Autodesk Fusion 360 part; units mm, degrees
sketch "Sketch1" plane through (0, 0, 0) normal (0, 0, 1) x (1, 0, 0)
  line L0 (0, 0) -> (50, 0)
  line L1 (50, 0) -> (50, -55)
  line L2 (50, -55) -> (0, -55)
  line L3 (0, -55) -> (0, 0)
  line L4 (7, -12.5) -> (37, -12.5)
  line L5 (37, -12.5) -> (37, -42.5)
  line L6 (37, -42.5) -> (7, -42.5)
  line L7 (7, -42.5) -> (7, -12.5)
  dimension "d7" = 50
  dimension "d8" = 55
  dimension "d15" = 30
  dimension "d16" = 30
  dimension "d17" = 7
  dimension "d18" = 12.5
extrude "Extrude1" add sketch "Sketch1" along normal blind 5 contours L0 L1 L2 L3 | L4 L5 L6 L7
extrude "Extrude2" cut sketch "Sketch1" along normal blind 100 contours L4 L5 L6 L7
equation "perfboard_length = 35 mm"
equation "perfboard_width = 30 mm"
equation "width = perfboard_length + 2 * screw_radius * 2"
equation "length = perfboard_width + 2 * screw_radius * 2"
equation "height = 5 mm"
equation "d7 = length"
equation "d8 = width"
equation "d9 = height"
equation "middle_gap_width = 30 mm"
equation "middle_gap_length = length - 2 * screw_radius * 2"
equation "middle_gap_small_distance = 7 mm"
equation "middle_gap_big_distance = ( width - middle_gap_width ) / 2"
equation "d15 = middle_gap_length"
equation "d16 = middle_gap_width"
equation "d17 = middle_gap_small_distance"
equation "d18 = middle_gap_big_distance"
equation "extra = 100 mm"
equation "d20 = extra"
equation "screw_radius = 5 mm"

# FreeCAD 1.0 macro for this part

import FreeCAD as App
import Part
import Sketcher

V = App.Vector

doc = App.newDocument("Part")
body = doc.addObject("PartDesign::Body", "Body")

# Sketch on XY plane
sketch1 = body.newObject("Sketcher::SketchObject", "Sketch")
sketch1.AttachmentSupport = (doc.getObject("XY_Plane"), [""])
sketch1.MapMode = "FlatFace"
sketch1.addGeometry(Part.LineSegment(V(50, 0, 0), V(0, 0, 0)), False)
sketch1.addGeometry(Part.LineSegment(V(0, 0, 0), V(0, -55, 0)), False)
sketch1.addGeometry(Part.LineSegment(V(0, -55, 0), V(50, -55, 0)), False)
sketch1.addGeometry(Part.LineSegment(V(50, -55, 0), V(50, 0, 0)), False)
sketch1.addConstraint(Sketcher.Constraint("Coincident", 0, 2, 1, 1))
sketch1.addConstraint(Sketcher.Constraint("Coincident", 1, 2, 2, 1))
sketch1.addConstraint(Sketcher.Constraint("Coincident", 2, 2, 3, 1))
sketch1.addConstraint(Sketcher.Constraint("Coincident", 3, 2, 0, 1))
sketch1.addConstraint(Sketcher.Constraint("Horizontal", 0))
sketch1.addConstraint(Sketcher.Constraint("Vertical", 1))
sketch1.addConstraint(Sketcher.Constraint("Horizontal", 2))
sketch1.addConstraint(Sketcher.Constraint("Vertical", 3))
sketch1.addConstraint(Sketcher.Constraint("Coincident", 0, 2, -1, 1))
sketch1.addConstraint(Sketcher.Constraint("DistanceX", 0, 2, 0, 1, 50.0))
sketch1.addConstraint(Sketcher.Constraint("DistanceY", 1, 2, 1, 1, 55.0))
pad1 = body.newObject("PartDesign::Pad", "Pad")
pad1.Profile = sketch1
pad1.Length = 5

# Sketch on XY plane
sketch2 = body.newObject("Sketcher::SketchObject", "Sketch001")
sketch2.AttachmentSupport = (doc.getObject("XY_Plane"), [""])
sketch2.MapMode = "FlatFace"
sketch2.addGeometry(Part.LineSegment(V(37, -12.5, 0), V(7, -12.5, 0)), False)
sketch2.addGeometry(Part.LineSegment(V(7, -12.5, 0), V(7, -42.5, 0)), False)
sketch2.addGeometry(Part.LineSegment(V(7, -42.5, 0), V(37, -42.5, 0)), False)
sketch2.addGeometry(Part.LineSegment(V(37, -42.5, 0), V(37, -12.5, 0)), False)
sketch2.addConstraint(Sketcher.Constraint("Coincident", 0, 2, 1, 1))
sketch2.addConstraint(Sketcher.Constraint("Coincident", 1, 2, 2, 1))
sketch2.addConstraint(Sketcher.Constraint("Coincident", 2, 2, 3, 1))
sketch2.addConstraint(Sketcher.Constraint("Coincident", 3, 2, 0, 1))
sketch2.addConstraint(Sketcher.Constraint("Horizontal", 0))
sketch2.addConstraint(Sketcher.Constraint("Vertical", 1))
sketch2.addConstraint(Sketcher.Constraint("Horizontal", 2))
sketch2.addConstraint(Sketcher.Constraint("Vertical", 3))
sketch2.addConstraint(Sketcher.Constraint("Equal", 2, 1))
sketch2.addConstraint(Sketcher.Constraint("DistanceX", 0, 2, 0, 1, 30.0))
sketch2.addConstraint(Sketcher.Constraint("DistanceX", -1, 1, 0, 2, 7.0))
sketch2.addConstraint(Sketcher.Constraint("DistanceY", 0, 2, -1, 1, 12.5))
pocket1 = body.newObject("PartDesign::Pocket", "Pocket")
pocket1.Profile = sketch2
pocket1.Length = 100
pocket1.Reversed = True

doc.recompute()
